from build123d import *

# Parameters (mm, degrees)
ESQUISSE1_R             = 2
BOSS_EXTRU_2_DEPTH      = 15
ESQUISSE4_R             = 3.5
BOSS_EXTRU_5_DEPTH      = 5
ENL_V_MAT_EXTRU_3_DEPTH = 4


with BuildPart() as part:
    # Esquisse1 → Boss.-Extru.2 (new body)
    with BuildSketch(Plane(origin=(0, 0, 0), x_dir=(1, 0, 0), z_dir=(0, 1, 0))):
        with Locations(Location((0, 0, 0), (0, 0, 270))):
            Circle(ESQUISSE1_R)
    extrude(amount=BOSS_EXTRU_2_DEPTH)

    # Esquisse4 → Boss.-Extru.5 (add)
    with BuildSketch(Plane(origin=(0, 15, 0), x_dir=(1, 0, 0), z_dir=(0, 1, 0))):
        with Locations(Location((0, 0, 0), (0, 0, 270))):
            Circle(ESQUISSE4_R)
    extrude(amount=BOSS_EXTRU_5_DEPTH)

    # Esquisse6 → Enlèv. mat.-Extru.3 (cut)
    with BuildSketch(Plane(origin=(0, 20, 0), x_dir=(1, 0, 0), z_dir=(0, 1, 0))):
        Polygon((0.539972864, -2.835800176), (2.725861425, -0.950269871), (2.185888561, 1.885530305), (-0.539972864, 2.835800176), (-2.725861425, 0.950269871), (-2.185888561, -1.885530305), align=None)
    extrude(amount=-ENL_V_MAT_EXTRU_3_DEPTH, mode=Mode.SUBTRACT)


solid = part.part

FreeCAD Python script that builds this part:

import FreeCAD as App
import Part
import Sketcher
from FreeCAD import Vector


def add_polygon(sketch, points):
    """Adds a closed chain of lines whose ends are joined by coincident constraints."""
    first, n = sketch.GeometryCount, len(points)
    for a, b in zip(points, points[1:] + points[:1]):
        sketch.addGeometry(Part.LineSegment(App.Vector(*a, 0), App.Vector(*b, 0)), False)
    for i in range(n):
        sketch.addConstraint(Sketcher.Constraint("Coincident", first + i, 2, first + (i + 1) % n, 1))

doc = App.newDocument("Part")
body = doc.addObject("PartDesign::Body", "Body")

# Sketch on XZ plane
sketch1 = body.newObject("Sketcher::SketchObject", "Sketch")
sketch1.AttachmentSupport = (doc.getObject("XZ_Plane"), [""])
sketch1.MapMode = "FlatFace"
sketch1.addGeometry(Part.Circle(Vector(0, 0, 0), Vector(0, 0, 1), 2), False)
sketch1.addConstraint([
    Sketcher.Constraint("Coincident", 0, 3, -1, 1),
    Sketcher.Constraint("Diameter", 0, 4.0),
])
pad1 = body.newObject("PartDesign::Pad", "Pad")
pad1.Profile = sketch1
pad1.Length = 15
pad1.Reversed = True

# Sketch on XZ plane
sketch2 = body.newObject("Sketcher::SketchObject", "Sketch001")
sketch2.AttachmentSupport = (doc.getObject("XZ_Plane"), [""])
sketch2.MapMode = "FlatFace"
sketch2.AttachmentOffset = App.Placement(Vector(0, 0, -15), App.Rotation())
sketch2.addGeometry(Part.Circle(Vector(0, 0, 0), Vector(0, 0, 1), 3.5), False)
sketch2.addConstraint([
    Sketcher.Constraint("Coincident", 0, 3, -1, 1),
    Sketcher.Constraint("Diameter", 0, 7.0),
])
pad2 = body.newObject("PartDesign::Pad", "Pad001")
pad2.Profile = sketch2
pad2.Length = 5
pad2.Reversed = True

# Sketch on XZ plane
sketch3 = body.newObject("Sketcher::SketchObject", "Sketch002")
sketch3.AttachmentSupport = (doc.getObject("XZ_Plane"), [""])
sketch3.MapMode = "FlatFace"
sketch3.AttachmentOffset = App.Placement(Vector(0, 0, -20), App.Rotation())
add_polygon(sketch3, [(0.539973, 2.8358), (2.725861, 0.95027), (2.185889, -1.88553), (-0.539973, -2.8358), (-2.725861, -0.95027), (-2.185889, 1.88553)])  # lines 0-5
sketch3.addConstraint([
    Sketcher.Constraint("Symmetric", 0, 2, 3, 2, -1, 1),
    Sketcher.Constraint("Symmetric", 1, 2, 4, 2, -1, 1),
    Sketcher.Constraint("Symmetric", 2, 2, 5, 2, -1, 1),
    Sketcher.Constraint("Equal", 0, 1),
    Sketcher.Constraint("Equal", 1, 2),
    Sketcher.Constraint("DistanceY", 2, 2, -1, 1, 2.8358),
    Sketcher.Constraint("DistanceY", 1, 2, 0, 2, 2.8358),
    Sketcher.Constraint("Distance", 0, 2.886751),
    Sketcher.Constraint("DistanceX", -1, 1, 0, 2, 2.725861),
])
pocket1 = body.newObject("PartDesign::Pocket", "Pocket")
pocket1.Profile = sketch3
pocket1.Length = 4
pocket1.Reversed = True

doc.recompute()
